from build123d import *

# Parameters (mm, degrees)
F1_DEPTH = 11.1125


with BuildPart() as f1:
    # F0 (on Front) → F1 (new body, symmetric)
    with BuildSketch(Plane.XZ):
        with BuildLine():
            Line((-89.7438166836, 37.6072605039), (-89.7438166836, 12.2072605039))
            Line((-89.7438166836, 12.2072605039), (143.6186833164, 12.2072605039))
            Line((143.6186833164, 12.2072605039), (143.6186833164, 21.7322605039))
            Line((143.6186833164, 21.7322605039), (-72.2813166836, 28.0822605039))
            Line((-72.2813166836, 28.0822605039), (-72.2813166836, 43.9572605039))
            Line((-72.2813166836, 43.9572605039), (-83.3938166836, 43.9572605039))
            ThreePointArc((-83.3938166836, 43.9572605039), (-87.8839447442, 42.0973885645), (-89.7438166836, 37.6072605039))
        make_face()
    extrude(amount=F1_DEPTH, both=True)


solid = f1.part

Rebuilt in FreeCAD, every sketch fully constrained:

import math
import FreeCAD as App
import Part
import Sketcher
Q = App.Units.Quantity

doc = App.newDocument("Part")
body = doc.addObject("PartDesign::Body", "Body")

# Sketch on XZ plane
sketch1 = body.newObject("Sketcher::SketchObject", "Sketch")
sketch1.AttachmentSupport = (doc.getObject("XZ_Plane"), [""])
sketch1.MapMode = "FlatFace"
sketch1.addGeometry([
    Part.LineSegment(App.Vector(-89.743817, 37.607261, 0), App.Vector(-89.743817, 12.207261, 0)),  # 0
    Part.LineSegment(App.Vector(-89.743817, 12.207261, 0), App.Vector(143.618683, 12.207261, 0)),  # 1
    Part.LineSegment(App.Vector(143.618683, 12.207261, 0), App.Vector(143.618683, 21.732261, 0)),  # 2
    Part.LineSegment(App.Vector(143.618683, 21.732261, 0), App.Vector(-72.281317, 28.082261, 0)),  # 3
    Part.LineSegment(App.Vector(-72.281317, 28.082261, 0), App.Vector(-72.281317, 43.957261, 0)),  # 4
    Part.LineSegment(App.Vector(-72.281317, 43.957261, 0), App.Vector(-83.393817, 43.957261, 0)),  # 5
    Part.ArcOfCircle(Part.Circle(App.Vector(-83.393817, 37.607261, 0), App.Vector(0, 0, 1), 6.35), math.radians(90), math.radians(180)),  # 6
], False)
sketch1.addConstraint([
    Sketcher.Constraint("Coincident", 0, 2, 1, 1),
    Sketcher.Constraint("Coincident", 1, 2, 2, 1),
    Sketcher.Constraint("Coincident", 2, 2, 3, 1),
    Sketcher.Constraint("Coincident", 3, 2, 4, 1),
    Sketcher.Constraint("Coincident", 4, 2, 5, 1),
    Sketcher.Constraint("Tangent", 5, 2, 6, 1),
    Sketcher.Constraint("Tangent", 6, 2, 0, 1),
    Sketcher.Constraint("Vertical", 0),
    Sketcher.Constraint("Horizontal", 1),
    Sketcher.Constraint("Vertical", 2),
    Sketcher.Constraint("Vertical", 4),
    Sketcher.Constraint("Horizontal", 5),
    Sketcher.Constraint("DistanceY", 0, 2, 0, 1, Q("1 in")),
    Sketcher.Constraint("Radius", 6, Q("0.25 in")),
    Sketcher.Constraint("DistanceX", 3, 2, 2, 2, Q("8.5 in")),
    Sketcher.Constraint("DistanceX", 1, 1, 1, 2, Q("9.1875 in")),
    Sketcher.Constraint("DistanceY", 2, 1, 2, 2, Q("0.375 in")),
    Sketcher.Constraint("DistanceY", 4, 1, 4, 2, Q("0.625 in")),
    Sketcher.Constraint("DistanceY", -1, 1, 6, 3, Q("37.607261 mm")),
    Sketcher.Constraint("DistanceX", 6, 3, -1, 1, Q("83.393817 mm")),
])
pad1 = body.newObject("PartDesign::Pad", "Pad")
pad1.Profile = sketch1
pad1.Length = Q("0.875 in")
pad1.Midplane = True

doc.recompute()
